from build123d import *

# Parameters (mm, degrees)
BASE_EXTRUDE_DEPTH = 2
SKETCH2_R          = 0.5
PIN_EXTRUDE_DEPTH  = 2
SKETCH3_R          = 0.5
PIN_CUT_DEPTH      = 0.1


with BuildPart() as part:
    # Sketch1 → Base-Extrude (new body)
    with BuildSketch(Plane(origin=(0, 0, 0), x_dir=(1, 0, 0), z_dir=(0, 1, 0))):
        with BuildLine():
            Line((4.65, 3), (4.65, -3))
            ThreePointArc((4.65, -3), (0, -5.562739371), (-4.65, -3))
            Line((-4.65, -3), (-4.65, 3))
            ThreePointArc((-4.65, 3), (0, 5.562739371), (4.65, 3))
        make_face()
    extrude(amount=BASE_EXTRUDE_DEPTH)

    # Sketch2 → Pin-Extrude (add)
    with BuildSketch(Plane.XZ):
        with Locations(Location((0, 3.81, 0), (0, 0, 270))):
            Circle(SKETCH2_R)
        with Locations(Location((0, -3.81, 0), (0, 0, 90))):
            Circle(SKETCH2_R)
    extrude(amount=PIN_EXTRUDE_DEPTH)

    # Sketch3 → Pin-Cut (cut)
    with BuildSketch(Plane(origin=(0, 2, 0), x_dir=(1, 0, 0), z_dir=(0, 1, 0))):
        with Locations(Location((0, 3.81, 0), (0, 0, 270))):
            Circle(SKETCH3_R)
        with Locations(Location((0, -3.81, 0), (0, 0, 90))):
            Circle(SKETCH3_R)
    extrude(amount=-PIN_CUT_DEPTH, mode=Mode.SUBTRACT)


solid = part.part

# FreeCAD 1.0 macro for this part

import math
import FreeCAD as App
import Part
import Sketcher

V = App.Vector
Q = App.Units.Quantity

doc = App.newDocument("Part")
body = doc.addObject("PartDesign::Body", "Body")

# Sketch on XZ plane
sketch1 = body.newObject("Sketcher::SketchObject", "Sketch")
sketch1.AttachmentSupport = (doc.getObject("XZ_Plane"), [""])
sketch1.MapMode = "FlatFace"
sketch1.addGeometry([
    Part.LineSegment(V(4.65, 3, 0), V(4.65, -3, 0)),
    Part.ArcOfCircle(Part.Circle(V(0, -0.062739, 0), V(0, 0, 1), 5.5), math.radians(-147.720669), math.radians(-32.279331)),
    Part.LineSegment(V(-4.65, -3, 0), V(-4.65, 3, 0)),
    Part.ArcOfCircle(Part.Circle(V(0, 0.062739, 0), V(0, 0, 1), 5.5), math.radians(32.279331), math.radians(147.720669)),
], False)
sketch1.addConstraint([
    Sketcher.Constraint("Coincident", 0, 2, 1, 2),
    Sketcher.Constraint("Coincident", 1, 1, 2, 1),
    Sketcher.Constraint("Coincident", 2, 2, 3, 2),
    Sketcher.Constraint("Coincident", 3, 1, 0, 1),
    Sketcher.Constraint("Vertical", 0),
    Sketcher.Constraint("Vertical", 2),
    Sketcher.Constraint("Equal", 1, 3),
    Sketcher.Constraint("Symmetric", 1, 3, 3, 3, -1, 1),
    Sketcher.Constraint("Symmetric", 0, 2, 1, 1, -2),
    Sketcher.Constraint("Radius", 1, Q("5.5 mm")),
    Sketcher.Constraint("DistanceY", 0, 2, 0, 1, Q("6 mm")),
    Sketcher.Constraint("DistanceX", 1, 1, 0, 2, Q("9.3 mm")),
])
pad1 = body.newObject("PartDesign::Pad", "Pad")
pad1.Profile = sketch1
pad1.Length = 2
pad1.Reversed = True

# Sketch on XZ plane
sketch2 = body.newObject("Sketcher::SketchObject", "Sketch001")
sketch2.AttachmentSupport = (doc.getObject("XZ_Plane"), [""])
sketch2.MapMode = "FlatFace"
sketch2.addGeometry([
    Part.Circle(V(0, 3.8, 0), V(0, 0, 1), 0.5),
    Part.Circle(V(0, -3.8, 0), V(0, 0, 1), 0.5),
], False)
sketch2.addConstraint([
    Sketcher.Constraint("Equal", 0, 1),
    Sketcher.Constraint("Symmetric", 0, 3, 1, 3, -1, 1),
    Sketcher.Constraint("PointOnObject", 0, 3, -2),
    Sketcher.Constraint("Diameter", 0, Q("1 mm")),
    Sketcher.Constraint("DistanceY", -1, 1, 0, 3, Q("3.81 mm")),
])
pad2 = body.newObject("PartDesign::Pad", "Pad001")
pad2.Profile = sketch2
pad2.Length = 2

# Sketch on XZ plane
sketch3 = body.newObject("Sketcher::SketchObject", "Sketch002")
sketch3.AttachmentSupport = (doc.getObject("XZ_Plane"), [""])
sketch3.MapMode = "FlatFace"
sketch3.AttachmentOffset = App.Placement(V(0, 0, -2), App.Rotation())
sketch3.addGeometry([
    Part.Circle(V(0, -3.8, 0), V(0, 0, 1), 0.5),
    Part.Circle(V(0, 3.8, 0), V(0, 0, 1), 0.5),
], False)
sketch3.addConstraint([
    Sketcher.Constraint("Equal", 0, 1),
    Sketcher.Constraint("Symmetric", 0, 3, 1, 3, -1, 1),
    Sketcher.Constraint("PointOnObject", 0, 3, -2),
    Sketcher.Constraint("Diameter", 0, Q("1 mm")),
    Sketcher.Constraint("DistanceY", 0, 3, -1, 1, Q("3.81 mm")),
])
pocket1 = body.newObject("PartDesign::Pocket", "Pocket")
pocket1.Profile = sketch3
pocket1.Length = 0.1
pocket1.Reversed = True

doc.recompute()
